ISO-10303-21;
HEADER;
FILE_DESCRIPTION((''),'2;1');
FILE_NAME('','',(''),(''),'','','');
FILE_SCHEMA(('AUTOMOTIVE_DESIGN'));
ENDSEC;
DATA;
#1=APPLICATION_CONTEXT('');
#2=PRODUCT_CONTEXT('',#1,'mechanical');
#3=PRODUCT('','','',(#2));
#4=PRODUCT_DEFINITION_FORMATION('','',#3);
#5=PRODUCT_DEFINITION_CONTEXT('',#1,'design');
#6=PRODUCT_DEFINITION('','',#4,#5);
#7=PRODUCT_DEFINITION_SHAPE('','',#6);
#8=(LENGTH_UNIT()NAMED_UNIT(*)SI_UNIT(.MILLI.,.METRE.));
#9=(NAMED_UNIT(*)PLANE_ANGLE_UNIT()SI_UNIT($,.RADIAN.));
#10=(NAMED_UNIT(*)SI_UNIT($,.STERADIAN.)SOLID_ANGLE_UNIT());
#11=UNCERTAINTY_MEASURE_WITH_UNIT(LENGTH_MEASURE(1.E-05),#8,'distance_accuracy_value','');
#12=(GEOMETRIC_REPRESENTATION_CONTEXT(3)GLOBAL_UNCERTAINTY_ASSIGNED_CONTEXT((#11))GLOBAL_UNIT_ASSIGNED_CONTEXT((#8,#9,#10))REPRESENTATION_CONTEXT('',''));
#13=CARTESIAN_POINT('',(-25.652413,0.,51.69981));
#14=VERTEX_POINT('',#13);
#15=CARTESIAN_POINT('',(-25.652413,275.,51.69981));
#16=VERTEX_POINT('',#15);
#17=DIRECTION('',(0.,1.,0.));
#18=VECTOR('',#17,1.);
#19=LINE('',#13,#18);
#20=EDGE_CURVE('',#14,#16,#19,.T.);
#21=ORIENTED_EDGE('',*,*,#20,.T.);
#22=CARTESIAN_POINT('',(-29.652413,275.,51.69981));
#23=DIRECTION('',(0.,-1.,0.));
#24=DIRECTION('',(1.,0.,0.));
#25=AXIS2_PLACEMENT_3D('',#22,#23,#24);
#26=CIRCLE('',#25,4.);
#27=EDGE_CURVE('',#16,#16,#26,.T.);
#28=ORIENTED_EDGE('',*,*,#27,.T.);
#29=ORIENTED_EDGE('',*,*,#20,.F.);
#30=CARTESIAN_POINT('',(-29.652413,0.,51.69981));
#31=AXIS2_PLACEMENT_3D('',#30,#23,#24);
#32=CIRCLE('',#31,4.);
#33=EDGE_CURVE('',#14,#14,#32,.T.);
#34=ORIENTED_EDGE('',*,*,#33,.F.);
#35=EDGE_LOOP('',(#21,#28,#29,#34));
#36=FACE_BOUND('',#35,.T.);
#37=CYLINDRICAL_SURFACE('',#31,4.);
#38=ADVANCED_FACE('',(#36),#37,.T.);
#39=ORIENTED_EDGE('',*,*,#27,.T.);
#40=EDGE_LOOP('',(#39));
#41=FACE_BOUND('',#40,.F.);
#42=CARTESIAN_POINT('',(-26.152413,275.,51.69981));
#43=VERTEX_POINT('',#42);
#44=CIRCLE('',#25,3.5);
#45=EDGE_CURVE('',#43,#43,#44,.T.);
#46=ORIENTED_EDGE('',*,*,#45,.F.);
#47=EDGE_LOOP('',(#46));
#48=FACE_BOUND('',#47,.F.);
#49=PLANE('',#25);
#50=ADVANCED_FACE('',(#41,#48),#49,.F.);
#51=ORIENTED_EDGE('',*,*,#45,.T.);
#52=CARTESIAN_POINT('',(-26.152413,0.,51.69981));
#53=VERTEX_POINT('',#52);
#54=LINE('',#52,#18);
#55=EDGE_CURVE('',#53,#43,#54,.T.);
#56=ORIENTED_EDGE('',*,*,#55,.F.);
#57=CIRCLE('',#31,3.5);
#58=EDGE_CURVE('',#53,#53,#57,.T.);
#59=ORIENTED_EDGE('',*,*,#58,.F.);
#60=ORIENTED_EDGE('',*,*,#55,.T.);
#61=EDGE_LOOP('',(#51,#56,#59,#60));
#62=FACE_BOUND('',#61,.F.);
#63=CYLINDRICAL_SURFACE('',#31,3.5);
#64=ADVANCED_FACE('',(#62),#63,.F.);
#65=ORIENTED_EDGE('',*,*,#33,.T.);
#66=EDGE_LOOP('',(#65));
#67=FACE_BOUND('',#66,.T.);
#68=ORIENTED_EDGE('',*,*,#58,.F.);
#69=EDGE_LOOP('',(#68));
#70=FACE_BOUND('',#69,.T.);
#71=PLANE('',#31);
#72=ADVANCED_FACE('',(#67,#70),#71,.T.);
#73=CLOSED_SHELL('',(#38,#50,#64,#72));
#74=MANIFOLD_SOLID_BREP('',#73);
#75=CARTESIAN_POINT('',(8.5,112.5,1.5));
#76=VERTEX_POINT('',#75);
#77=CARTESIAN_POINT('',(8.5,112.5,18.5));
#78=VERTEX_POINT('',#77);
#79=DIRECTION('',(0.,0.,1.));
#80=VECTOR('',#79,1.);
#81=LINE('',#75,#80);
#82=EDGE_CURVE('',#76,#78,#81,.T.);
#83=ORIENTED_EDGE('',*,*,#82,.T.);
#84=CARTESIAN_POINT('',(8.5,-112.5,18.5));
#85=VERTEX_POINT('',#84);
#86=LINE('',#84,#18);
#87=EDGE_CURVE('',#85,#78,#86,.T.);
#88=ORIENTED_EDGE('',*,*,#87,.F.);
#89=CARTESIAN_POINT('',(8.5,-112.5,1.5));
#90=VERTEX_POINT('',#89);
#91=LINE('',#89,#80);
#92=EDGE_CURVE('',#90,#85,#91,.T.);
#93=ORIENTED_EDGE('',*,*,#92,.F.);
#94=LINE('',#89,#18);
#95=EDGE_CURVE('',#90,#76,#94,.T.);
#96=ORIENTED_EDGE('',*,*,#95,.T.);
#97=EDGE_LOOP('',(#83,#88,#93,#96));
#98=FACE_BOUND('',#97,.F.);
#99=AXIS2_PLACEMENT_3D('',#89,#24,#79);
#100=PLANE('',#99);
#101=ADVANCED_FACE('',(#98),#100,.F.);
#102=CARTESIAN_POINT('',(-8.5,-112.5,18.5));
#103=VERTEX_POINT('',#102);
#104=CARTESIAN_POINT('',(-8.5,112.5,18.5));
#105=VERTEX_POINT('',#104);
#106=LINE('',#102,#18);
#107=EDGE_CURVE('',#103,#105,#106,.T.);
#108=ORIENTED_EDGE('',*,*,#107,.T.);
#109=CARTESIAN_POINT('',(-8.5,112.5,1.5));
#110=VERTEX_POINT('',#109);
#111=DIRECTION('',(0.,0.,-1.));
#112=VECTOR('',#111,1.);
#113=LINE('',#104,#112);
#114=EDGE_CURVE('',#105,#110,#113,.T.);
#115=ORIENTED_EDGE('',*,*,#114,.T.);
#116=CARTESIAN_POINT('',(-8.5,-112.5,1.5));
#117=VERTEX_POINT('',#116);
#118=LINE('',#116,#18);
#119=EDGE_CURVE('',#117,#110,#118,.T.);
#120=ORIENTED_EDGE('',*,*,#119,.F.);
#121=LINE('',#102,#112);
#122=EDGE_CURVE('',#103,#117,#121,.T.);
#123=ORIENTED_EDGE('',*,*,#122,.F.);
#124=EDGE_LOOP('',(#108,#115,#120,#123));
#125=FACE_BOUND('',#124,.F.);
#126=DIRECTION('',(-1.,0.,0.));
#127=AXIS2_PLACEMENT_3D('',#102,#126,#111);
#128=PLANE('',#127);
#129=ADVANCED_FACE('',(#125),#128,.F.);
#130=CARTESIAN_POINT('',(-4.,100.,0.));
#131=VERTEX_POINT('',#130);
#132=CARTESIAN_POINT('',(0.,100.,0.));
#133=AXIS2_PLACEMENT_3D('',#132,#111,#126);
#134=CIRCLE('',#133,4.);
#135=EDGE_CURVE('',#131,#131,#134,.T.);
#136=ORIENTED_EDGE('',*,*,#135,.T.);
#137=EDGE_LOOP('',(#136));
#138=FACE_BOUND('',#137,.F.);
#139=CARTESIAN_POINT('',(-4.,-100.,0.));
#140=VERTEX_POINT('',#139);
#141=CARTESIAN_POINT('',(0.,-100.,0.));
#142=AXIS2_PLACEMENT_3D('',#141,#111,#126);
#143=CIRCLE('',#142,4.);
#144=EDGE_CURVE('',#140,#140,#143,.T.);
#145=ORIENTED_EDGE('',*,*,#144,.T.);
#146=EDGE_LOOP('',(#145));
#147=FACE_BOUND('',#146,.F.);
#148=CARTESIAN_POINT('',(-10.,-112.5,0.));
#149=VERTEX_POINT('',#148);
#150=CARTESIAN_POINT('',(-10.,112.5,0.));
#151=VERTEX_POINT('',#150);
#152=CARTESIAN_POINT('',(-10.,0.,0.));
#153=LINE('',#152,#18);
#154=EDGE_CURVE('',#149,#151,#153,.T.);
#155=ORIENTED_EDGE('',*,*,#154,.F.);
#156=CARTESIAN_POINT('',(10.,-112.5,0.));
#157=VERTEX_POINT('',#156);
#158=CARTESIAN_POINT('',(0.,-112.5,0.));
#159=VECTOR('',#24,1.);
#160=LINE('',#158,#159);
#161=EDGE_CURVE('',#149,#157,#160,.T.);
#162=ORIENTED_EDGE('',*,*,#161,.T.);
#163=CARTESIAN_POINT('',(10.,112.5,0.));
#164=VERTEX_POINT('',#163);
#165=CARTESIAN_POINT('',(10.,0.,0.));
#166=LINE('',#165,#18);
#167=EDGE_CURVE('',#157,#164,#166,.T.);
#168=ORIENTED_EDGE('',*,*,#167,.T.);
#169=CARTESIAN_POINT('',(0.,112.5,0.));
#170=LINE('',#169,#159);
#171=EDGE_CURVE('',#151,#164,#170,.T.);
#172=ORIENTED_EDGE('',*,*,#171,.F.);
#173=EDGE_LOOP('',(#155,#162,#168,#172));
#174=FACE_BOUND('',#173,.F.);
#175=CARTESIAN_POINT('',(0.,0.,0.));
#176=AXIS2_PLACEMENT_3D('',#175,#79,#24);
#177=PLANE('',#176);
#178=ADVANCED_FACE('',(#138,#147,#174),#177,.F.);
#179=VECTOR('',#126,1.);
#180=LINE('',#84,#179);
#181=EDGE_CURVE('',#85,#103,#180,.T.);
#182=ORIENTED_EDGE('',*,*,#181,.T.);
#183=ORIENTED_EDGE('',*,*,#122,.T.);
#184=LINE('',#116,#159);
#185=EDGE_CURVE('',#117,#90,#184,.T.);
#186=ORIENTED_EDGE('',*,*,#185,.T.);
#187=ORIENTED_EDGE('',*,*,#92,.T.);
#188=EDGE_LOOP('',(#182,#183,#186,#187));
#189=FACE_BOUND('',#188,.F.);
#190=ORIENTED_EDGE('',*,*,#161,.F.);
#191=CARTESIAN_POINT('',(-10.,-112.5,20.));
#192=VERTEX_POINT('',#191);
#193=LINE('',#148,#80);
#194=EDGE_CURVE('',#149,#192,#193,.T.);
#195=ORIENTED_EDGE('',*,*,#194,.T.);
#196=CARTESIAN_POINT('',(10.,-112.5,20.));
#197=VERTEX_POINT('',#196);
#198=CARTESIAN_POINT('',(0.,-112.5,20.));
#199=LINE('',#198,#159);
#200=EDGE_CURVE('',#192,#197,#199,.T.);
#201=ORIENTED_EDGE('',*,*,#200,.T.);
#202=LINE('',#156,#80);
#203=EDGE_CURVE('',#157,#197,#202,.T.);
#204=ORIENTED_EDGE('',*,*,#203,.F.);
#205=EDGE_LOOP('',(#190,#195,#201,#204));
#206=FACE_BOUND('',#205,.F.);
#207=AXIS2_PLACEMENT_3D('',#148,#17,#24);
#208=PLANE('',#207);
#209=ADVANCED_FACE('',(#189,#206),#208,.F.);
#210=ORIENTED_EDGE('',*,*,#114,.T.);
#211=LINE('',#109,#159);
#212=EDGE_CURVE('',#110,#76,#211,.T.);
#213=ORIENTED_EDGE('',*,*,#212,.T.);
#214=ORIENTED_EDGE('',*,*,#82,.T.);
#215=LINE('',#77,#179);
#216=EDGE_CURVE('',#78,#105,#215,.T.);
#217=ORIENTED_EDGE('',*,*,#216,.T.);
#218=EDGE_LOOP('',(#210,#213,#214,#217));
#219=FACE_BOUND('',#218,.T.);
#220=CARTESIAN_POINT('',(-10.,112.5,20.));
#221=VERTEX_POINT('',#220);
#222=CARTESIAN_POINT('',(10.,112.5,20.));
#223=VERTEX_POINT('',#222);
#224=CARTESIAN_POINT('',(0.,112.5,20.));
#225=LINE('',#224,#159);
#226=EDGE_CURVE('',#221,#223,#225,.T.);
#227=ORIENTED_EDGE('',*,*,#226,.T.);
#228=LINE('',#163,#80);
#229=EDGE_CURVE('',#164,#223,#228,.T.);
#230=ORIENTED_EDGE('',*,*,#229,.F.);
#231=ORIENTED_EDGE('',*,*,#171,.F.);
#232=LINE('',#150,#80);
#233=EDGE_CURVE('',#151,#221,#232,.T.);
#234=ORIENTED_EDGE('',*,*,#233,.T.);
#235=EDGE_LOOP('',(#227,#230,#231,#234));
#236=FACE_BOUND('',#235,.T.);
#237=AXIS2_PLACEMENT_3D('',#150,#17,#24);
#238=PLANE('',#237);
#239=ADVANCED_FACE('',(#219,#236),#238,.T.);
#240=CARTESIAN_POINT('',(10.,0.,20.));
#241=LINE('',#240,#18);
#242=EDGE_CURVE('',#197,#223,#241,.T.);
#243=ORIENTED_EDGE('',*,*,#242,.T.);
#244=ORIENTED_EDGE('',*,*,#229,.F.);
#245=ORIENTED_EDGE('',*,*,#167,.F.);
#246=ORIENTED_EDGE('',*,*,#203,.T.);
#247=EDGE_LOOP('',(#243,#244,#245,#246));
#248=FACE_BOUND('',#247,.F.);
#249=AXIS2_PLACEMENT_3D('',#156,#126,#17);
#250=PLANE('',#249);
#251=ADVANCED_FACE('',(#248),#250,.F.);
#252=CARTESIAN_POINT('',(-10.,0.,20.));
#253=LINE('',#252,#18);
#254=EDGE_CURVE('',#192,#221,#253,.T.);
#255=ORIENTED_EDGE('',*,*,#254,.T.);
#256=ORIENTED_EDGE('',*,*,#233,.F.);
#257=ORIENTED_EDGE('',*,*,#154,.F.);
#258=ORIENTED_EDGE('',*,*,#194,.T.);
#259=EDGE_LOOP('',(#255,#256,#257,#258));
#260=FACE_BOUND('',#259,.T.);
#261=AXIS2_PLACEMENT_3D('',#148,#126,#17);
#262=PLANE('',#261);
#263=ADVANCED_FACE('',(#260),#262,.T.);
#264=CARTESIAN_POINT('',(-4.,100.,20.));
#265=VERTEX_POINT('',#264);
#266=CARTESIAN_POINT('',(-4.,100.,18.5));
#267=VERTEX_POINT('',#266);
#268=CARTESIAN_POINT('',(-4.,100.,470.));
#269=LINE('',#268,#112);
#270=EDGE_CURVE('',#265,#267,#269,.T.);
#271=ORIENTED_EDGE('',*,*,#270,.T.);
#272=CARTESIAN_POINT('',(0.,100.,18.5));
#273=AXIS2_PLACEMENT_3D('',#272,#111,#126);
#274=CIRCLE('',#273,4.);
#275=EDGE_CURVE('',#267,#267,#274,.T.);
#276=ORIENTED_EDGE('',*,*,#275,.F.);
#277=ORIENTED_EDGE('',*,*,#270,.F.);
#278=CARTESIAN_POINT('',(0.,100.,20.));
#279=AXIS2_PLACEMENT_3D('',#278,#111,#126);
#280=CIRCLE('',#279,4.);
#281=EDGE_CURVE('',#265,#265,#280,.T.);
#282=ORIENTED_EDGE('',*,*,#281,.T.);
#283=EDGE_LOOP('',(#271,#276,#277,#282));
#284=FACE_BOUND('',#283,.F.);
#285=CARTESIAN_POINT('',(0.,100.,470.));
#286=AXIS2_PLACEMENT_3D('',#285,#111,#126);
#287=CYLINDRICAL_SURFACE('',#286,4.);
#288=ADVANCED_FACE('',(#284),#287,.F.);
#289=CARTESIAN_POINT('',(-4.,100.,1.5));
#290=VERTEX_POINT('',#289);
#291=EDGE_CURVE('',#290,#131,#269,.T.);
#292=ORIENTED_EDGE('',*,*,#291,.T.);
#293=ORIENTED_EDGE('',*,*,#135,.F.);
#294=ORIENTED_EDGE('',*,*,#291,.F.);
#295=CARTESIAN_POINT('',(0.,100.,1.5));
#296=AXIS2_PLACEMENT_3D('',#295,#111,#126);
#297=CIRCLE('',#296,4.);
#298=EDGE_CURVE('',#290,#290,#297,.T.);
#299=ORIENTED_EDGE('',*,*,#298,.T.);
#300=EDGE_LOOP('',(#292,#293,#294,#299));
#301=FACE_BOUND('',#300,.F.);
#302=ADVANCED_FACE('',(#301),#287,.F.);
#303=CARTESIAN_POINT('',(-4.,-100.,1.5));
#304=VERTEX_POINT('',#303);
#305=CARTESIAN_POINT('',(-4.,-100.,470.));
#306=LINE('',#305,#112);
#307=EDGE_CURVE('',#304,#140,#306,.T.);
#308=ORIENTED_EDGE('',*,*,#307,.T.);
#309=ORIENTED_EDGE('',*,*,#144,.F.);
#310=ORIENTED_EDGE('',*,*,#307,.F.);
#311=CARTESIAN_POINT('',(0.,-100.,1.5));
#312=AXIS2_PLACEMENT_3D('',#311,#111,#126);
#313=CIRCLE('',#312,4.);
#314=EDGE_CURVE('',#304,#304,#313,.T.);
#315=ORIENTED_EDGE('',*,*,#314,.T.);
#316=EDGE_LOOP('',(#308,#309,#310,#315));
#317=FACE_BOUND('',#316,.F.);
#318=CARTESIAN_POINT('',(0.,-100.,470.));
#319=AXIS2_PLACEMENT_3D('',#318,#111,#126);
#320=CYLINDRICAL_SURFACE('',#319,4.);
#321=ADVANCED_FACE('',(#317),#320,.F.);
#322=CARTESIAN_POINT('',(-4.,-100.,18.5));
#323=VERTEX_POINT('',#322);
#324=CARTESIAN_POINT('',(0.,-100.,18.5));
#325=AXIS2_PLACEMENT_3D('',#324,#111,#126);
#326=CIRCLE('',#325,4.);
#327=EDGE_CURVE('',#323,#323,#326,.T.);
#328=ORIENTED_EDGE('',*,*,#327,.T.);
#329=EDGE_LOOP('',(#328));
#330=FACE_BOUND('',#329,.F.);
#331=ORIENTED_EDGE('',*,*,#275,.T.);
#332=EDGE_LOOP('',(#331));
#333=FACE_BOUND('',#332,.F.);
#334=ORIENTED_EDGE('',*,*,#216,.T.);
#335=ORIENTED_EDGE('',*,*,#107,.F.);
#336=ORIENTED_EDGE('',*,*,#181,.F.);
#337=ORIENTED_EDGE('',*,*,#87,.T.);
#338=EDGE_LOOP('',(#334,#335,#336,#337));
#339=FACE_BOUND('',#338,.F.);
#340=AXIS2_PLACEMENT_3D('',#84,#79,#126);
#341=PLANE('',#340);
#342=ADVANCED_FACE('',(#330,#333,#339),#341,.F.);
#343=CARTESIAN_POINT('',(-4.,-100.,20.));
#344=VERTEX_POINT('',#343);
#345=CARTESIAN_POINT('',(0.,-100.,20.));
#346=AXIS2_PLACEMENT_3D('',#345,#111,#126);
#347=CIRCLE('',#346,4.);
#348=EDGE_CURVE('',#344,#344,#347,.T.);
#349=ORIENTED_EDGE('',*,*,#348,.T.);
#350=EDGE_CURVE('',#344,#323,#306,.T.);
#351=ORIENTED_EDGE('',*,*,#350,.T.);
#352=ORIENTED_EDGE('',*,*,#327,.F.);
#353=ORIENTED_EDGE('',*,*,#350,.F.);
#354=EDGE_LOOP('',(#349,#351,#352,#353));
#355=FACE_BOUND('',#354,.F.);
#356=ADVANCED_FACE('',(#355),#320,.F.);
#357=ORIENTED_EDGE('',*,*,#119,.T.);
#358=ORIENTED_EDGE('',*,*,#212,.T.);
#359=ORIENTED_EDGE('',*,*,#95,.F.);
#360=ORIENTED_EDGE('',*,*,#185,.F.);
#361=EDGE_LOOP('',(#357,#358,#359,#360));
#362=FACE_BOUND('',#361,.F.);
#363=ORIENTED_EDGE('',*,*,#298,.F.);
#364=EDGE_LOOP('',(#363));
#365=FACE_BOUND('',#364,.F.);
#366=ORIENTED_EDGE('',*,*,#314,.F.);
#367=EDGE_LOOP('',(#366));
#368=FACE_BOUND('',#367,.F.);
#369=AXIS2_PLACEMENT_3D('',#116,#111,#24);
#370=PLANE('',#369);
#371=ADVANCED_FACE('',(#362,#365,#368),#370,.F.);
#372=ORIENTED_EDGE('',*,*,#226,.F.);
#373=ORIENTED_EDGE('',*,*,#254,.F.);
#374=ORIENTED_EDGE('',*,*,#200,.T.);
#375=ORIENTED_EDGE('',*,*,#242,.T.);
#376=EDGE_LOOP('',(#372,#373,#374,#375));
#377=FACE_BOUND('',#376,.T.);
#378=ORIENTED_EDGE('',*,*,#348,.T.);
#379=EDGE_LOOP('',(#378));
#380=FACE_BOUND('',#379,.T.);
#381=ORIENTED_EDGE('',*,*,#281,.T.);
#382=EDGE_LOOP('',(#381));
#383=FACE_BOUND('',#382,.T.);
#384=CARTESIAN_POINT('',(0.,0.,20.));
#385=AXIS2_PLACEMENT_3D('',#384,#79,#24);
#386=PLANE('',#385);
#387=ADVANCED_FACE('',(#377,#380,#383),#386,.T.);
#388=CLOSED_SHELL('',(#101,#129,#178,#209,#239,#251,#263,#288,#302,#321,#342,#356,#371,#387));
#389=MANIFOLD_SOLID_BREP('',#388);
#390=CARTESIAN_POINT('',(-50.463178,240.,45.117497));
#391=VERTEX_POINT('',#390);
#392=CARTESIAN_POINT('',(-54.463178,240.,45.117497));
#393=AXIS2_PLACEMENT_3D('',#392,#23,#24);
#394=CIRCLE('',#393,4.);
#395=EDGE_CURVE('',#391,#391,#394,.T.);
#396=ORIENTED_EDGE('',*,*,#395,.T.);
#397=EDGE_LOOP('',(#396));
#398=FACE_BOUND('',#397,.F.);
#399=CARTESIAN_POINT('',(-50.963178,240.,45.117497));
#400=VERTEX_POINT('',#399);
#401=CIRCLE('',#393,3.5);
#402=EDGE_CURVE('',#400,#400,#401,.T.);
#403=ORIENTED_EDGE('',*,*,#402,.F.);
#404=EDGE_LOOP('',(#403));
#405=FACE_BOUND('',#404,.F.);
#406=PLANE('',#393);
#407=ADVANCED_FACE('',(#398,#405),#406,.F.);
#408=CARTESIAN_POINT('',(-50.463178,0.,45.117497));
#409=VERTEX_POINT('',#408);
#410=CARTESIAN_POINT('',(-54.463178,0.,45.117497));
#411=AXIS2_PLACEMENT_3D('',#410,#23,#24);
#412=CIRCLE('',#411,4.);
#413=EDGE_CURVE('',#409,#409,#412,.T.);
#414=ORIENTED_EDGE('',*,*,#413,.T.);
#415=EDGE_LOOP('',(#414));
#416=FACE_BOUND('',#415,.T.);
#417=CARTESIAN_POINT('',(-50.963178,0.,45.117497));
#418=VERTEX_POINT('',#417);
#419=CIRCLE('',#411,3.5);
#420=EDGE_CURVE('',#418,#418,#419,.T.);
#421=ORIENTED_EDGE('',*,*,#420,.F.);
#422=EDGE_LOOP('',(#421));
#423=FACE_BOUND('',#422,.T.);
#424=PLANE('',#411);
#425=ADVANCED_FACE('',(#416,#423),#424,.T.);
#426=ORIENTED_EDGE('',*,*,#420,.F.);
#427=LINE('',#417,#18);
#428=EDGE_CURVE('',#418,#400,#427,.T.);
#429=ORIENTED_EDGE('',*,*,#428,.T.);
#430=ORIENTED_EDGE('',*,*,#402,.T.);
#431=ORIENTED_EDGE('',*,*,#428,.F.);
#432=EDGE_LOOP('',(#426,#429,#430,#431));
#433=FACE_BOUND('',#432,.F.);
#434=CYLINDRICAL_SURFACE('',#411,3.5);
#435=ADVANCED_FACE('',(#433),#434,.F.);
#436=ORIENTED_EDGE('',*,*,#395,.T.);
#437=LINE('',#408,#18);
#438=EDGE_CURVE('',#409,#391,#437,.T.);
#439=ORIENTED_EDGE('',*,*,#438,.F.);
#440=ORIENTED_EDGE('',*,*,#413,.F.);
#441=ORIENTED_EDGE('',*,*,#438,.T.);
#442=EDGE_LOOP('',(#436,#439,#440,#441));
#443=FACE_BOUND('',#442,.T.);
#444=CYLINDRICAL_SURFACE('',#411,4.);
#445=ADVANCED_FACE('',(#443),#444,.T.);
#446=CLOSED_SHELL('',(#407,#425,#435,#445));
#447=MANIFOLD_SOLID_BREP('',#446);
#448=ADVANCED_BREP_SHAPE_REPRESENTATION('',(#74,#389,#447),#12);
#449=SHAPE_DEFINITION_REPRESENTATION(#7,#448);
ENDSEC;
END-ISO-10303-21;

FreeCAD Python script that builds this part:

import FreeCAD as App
import Part
import Sketcher
from FreeCAD import Vector

doc = App.newDocument("Part")
body = doc.addObject("PartDesign::Body", "Body")

sketch1 = body.newObject("Sketcher::SketchObject", "Sketch")
sketch1.AttachmentSupport = (doc.getObject("XY_Plane"), [""])
sketch1.MapMode = "FlatFace"
sketch1.addGeometry([
    Part.LineSegment(Vector(-10, 112, 0), Vector(-10, -112, 0)),
    Part.LineSegment(Vector(-10, -112, 0), Vector(10, -112, 0)),
    Part.LineSegment(Vector(10, -112, 0), Vector(10, 112, 0)),
    Part.LineSegment(Vector(10, 112, 0), Vector(-10, 112, 0)),
], False)
sketch1.addConstraint([
    Sketcher.Constraint("Coincident", 0, 2, 1, 1),
    Sketcher.Constraint("Coincident", 1, 2, 2, 1),
    Sketcher.Constraint("Coincident", 2, 2, 3, 1),
    Sketcher.Constraint("Coincident", 3, 2, 0, 1),
    Sketcher.Constraint("Vertical", 0),
    Sketcher.Constraint("Horizontal", 1),
    Sketcher.Constraint("Vertical", 2),
    Sketcher.Constraint("Horizontal", 3),
    Sketcher.Constraint("Symmetric", 0, 2, 2, 2, -1, 1),
    Sketcher.Constraint("DistanceX", 1, 1, 1, 2, 20.0),
    Sketcher.Constraint("DistanceY", 0, 2, 0, 1, 225.0),
])
pad1 = body.newObject("PartDesign::Pad", "Pad")
pad1.Profile = sketch1
pad1.Length = 20

sketch2 = body.newObject("Sketcher::SketchObject", "Sketch001")
sketch2.AttachmentSupport = (doc.getObject("XZ_Plane"), [""])
sketch2.MapMode = "FlatFace"
sketch2.AttachmentOffset = App.Placement(Vector(0, 0, 112.5), App.Rotation())
sketch2.addGeometry([
    Part.LineSegment(Vector(8, 2, 0), Vector(8, 18, 0)),
    Part.LineSegment(Vector(8, 18, 0), Vector(-8, 18, 0)),
    Part.LineSegment(Vector(-8, 18, 0), Vector(-8, 2, 0)),
    Part.LineSegment(Vector(-8, 2, 0), Vector(8, 2, 0)),
], False)
sketch2.addConstraint([
    Sketcher.Constraint("Coincident", 0, 2, 1, 1),
    Sketcher.Constraint("Coincident", 1, 2, 2, 1),
    Sketcher.Constraint("Coincident", 2, 2, 3, 1),
    Sketcher.Constraint("Coincident", 3, 2, 0, 1),
    Sketcher.Constraint("Vertical", 0),
    Sketcher.Constraint("Horizontal", 1),
    Sketcher.Constraint("Vertical", 2),
    Sketcher.Constraint("Horizontal", 3),
    Sketcher.Constraint("Equal", 3, 0),
    Sketcher.Constraint("DistanceX", 1, 2, 1, 1, 17.0),
    Sketcher.Constraint("DistanceX", -1, 1, 0, 2, 8.5),
    Sketcher.Constraint("DistanceY", -1, 1, 0, 2, 18.5),
])
pocket1 = body.newObject("PartDesign::Pocket", "Pocket")
pocket1.Profile = sketch2
pocket1.Length = 225

sketch3 = body.newObject("Sketcher::SketchObject", "Sketch002")
sketch3.AttachmentSupport = (doc.getObject("XY_Plane"), [""])
sketch3.MapMode = "FlatFace"
sketch3.AttachmentOffset = App.Placement(Vector(0, 0, 20), App.Rotation())
sketch3.addGeometry([
    Part.Circle(Vector(0, -100, 0), Vector(0, 0, 1), 4),
    Part.Circle(Vector(0, 100, 0), Vector(0, 0, 1), 4),
], False)
sketch3.addConstraint([
    Sketcher.Constraint("Equal", 0, 1),
    Sketcher.Constraint("Symmetric", 0, 3, 1, 3, -1, 1),
    Sketcher.Constraint("PointOnObject", 0, 3, -2),
    Sketcher.Constraint("Diameter", 0, 8.0),
    Sketcher.Constraint("DistanceY", 0, 3, -1, 1, 100.0),
])
doc.recompute()
hole = body.newObject("PartDesign::Hole", "Hole")
hole.Profile = sketch3
hole.ThreadType = "None"
hole.Diameter = 8
hole.DepthType = "Dimension"
hole.Depth = 450
hole.DrillPoint = "Flat"
body2 = doc.addObject("PartDesign::Body", "Body001")

sketch4 = body2.newObject("Sketcher::SketchObject", "Sketch003")
sketch4.AttachmentSupport = (doc.getObject("XZ_Plane001"), [""])
sketch4.MapMode = "FlatFace"
sketch4.addGeometry([
    Part.Circle(Vector(-54.5, 45.1, 0), Vector(0, 0, 1), 4),
    Part.Circle(Vector(-54.5, 45.1, 0), Vector(0, 0, 1), 3.5),
], False)
sketch4.addConstraint([
    Sketcher.Constraint("Coincident", 1, 3, 0, 3),
    Sketcher.Constraint("Diameter", 0, 8.0),
    Sketcher.Constraint("Diameter", 1, 7.0),
    Sketcher.Constraint("DistanceX", 0, 3, -1, 1, 54.463178),
    Sketcher.Constraint("DistanceY", -1, 1, 0, 3, 45.117497),
])
pad2 = body2.newObject("PartDesign::Pad", "Pad001")
pad2.Profile = sketch4
pad2.Length = 240
pad2.Reversed = True
body3 = doc.addObject("PartDesign::Body", "Body002")

sketch5 = body3.newObject("Sketcher::SketchObject", "Sketch004")
sketch5.AttachmentSupport = (doc.getObject("XZ_Plane002"), [""])
sketch5.MapMode = "FlatFace"
sketch5.addGeometry([
    Part.Circle(Vector(-29.7, 51.7, 0), Vector(0, 0, 1), 4),
    Part.Circle(Vector(-29.7, 51.7, 0), Vector(0, 0, 1), 3.5),
], False)
sketch5.addConstraint([
    Sketcher.Constraint("Coincident", 1, 3, 0, 3),
    Sketcher.Constraint("Diameter", 0, 8.0),
    Sketcher.Constraint("Diameter", 1, 7.0),
    Sketcher.Constraint("DistanceY", -1, 1, 0, 3, 51.69981),
    Sketcher.Constraint("DistanceX", 0, 3, -1, 1, 29.652413),
])
pad3 = body3.newObject("PartDesign::Pad", "Pad002")
pad3.Profile = sketch5
pad3.Length = 275
pad3.Reversed = True

doc.recompute()
